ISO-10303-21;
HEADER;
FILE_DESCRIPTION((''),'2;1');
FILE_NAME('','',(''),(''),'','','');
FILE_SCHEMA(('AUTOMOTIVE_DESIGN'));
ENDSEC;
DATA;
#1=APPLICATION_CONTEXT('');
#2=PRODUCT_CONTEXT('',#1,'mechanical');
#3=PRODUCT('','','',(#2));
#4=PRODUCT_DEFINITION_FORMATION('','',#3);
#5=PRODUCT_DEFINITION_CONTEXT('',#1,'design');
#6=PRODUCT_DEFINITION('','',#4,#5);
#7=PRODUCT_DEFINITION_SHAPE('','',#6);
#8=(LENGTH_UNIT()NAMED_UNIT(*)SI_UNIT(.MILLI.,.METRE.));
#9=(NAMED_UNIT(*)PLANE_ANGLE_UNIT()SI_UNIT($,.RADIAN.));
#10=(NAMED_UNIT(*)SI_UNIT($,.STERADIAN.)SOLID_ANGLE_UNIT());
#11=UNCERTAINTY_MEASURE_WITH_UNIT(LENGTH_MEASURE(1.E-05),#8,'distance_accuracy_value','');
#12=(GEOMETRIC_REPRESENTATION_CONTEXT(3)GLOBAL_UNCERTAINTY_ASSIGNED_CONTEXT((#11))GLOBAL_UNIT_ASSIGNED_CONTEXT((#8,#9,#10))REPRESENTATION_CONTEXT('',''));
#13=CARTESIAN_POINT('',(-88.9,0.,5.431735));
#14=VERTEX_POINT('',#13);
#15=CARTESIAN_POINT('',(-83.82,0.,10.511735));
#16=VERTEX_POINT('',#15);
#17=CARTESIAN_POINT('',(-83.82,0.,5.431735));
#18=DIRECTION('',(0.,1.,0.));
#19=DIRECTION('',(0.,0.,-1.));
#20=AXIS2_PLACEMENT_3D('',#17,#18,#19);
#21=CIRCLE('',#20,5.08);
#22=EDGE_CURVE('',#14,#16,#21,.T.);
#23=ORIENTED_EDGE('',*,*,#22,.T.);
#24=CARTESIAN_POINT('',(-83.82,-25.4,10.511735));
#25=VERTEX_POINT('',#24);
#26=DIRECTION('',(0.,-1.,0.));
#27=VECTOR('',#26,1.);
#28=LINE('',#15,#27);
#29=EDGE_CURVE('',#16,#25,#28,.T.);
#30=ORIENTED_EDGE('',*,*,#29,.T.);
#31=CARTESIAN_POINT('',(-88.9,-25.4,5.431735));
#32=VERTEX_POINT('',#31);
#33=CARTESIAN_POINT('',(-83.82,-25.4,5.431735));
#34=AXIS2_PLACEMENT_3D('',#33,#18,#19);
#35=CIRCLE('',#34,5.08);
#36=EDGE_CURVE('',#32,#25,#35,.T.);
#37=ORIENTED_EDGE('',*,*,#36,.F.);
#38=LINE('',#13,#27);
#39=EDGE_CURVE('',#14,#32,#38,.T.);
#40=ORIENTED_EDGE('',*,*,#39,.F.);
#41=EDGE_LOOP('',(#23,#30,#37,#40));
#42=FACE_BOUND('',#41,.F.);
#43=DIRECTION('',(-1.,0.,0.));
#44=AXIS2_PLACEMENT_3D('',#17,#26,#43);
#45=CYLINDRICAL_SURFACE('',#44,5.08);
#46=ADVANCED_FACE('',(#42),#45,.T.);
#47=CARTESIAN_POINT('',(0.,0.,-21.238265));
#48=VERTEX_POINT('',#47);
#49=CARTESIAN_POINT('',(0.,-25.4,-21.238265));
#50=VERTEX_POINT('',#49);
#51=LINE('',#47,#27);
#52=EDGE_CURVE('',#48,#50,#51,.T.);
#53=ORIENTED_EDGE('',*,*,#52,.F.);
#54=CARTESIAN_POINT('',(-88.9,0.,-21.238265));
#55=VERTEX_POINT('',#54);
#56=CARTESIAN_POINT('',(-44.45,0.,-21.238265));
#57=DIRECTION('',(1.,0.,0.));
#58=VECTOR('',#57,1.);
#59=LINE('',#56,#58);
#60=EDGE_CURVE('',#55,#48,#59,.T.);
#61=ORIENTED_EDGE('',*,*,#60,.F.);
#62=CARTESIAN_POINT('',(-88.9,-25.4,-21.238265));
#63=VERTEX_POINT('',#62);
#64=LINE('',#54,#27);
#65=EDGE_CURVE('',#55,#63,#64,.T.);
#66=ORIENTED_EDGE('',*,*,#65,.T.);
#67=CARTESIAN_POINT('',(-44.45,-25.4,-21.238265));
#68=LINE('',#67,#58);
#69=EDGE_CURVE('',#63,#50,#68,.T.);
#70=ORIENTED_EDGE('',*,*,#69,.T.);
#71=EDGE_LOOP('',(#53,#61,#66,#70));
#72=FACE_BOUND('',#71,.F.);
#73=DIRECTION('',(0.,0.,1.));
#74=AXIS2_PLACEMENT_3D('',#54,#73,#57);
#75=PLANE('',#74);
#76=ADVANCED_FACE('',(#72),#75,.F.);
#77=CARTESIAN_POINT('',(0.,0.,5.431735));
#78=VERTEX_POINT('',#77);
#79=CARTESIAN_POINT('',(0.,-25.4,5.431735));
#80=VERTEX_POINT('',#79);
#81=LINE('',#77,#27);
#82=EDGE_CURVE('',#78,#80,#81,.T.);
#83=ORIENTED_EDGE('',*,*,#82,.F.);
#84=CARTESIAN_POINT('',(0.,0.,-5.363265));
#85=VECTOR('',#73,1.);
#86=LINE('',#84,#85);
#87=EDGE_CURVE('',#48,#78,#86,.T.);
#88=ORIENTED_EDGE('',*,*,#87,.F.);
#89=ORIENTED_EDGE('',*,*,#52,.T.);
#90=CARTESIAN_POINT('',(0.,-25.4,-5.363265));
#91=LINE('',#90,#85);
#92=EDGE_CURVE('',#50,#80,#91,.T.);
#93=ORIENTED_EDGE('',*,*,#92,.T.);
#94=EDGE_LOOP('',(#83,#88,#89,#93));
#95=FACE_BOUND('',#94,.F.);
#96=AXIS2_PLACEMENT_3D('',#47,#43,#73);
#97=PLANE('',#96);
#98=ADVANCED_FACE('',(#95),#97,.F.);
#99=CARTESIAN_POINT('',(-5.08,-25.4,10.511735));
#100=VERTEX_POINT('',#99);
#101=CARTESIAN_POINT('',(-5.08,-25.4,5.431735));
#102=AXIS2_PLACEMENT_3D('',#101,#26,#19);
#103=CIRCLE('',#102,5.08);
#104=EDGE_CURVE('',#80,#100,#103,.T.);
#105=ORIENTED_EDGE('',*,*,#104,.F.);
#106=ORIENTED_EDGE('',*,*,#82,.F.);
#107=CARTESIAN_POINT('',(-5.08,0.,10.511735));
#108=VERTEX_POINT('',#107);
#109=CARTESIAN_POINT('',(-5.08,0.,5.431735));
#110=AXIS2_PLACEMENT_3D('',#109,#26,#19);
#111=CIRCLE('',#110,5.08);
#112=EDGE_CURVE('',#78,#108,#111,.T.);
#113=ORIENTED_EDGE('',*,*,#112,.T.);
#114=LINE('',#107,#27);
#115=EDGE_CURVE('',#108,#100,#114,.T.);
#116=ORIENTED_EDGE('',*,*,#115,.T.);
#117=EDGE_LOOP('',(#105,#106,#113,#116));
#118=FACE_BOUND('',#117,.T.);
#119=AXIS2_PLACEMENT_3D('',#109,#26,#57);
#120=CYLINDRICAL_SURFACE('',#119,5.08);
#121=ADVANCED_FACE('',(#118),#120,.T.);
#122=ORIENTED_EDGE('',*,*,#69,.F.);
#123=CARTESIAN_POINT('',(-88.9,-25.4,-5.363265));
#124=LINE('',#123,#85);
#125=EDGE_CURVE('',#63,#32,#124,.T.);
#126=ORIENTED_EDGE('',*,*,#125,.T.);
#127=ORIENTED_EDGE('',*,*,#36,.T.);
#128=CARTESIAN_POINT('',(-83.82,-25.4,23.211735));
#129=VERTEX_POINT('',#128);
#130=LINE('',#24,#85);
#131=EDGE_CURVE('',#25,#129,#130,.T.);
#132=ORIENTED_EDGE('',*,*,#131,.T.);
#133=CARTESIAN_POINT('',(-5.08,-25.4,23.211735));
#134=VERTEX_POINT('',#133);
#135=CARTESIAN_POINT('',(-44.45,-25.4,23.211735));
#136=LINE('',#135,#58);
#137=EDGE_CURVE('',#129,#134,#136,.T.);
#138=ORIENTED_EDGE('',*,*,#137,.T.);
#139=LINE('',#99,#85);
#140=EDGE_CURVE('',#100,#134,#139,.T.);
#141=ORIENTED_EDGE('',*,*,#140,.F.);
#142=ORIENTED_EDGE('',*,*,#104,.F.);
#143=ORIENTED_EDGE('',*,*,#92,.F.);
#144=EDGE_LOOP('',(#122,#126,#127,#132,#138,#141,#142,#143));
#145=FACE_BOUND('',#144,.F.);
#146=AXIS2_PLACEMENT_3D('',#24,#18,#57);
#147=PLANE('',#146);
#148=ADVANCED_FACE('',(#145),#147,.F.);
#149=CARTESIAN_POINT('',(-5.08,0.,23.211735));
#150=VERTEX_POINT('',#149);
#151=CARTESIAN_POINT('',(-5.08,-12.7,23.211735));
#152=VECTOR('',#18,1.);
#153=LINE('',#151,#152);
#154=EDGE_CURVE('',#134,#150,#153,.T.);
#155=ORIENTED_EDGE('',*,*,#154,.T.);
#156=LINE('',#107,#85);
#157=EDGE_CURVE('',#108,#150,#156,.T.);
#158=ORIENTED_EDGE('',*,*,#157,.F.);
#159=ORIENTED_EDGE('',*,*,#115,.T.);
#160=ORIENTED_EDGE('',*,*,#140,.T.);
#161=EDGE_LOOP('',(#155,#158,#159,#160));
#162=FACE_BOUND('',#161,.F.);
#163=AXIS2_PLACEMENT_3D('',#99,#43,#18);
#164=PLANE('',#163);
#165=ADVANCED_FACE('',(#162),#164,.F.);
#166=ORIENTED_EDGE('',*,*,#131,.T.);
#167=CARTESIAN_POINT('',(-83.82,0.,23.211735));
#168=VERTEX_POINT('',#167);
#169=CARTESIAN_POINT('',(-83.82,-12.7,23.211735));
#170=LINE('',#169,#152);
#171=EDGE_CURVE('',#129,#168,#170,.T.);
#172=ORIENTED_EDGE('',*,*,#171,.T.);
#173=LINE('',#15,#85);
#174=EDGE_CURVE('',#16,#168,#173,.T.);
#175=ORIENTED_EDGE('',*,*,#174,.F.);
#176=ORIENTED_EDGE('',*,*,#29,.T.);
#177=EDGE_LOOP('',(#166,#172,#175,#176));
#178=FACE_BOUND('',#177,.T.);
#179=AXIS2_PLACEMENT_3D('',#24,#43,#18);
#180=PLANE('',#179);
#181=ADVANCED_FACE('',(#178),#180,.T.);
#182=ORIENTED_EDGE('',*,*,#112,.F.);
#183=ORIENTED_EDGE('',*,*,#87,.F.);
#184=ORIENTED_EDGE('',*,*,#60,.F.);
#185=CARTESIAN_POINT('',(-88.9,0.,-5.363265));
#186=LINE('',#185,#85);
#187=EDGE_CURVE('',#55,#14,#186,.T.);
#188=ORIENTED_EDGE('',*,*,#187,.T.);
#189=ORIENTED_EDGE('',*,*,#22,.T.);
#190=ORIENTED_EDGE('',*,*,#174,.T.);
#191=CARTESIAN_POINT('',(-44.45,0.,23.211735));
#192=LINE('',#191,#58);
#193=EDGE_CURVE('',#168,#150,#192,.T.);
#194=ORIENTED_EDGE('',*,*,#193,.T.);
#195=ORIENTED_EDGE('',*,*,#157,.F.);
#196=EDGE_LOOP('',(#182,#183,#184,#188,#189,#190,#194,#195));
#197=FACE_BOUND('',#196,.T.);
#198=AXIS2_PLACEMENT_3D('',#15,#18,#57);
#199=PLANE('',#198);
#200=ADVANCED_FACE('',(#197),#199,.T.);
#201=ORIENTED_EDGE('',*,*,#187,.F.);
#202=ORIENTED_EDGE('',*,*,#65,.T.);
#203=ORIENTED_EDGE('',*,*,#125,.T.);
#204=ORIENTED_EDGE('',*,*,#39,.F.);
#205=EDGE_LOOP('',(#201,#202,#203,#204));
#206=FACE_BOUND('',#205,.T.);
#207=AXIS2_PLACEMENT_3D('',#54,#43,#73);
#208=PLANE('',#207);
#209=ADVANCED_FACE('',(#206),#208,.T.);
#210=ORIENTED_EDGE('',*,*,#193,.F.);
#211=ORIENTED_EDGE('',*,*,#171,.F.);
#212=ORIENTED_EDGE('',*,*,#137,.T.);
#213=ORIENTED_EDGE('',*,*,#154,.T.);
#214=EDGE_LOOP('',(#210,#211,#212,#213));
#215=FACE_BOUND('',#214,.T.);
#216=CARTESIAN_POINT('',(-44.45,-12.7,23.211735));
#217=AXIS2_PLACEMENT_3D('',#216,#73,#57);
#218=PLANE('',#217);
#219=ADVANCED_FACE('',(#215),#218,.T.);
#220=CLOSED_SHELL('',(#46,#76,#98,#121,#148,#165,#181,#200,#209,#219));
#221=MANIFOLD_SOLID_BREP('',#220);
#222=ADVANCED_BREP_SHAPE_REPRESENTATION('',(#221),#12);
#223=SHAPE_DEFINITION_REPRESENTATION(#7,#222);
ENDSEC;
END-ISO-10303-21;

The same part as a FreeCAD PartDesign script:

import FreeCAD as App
import Part
import Sketcher

V = App.Vector
Q = App.Units.Quantity


def edges_at(feature, points):
    """Names of the edges that pass closest to the given points."""
    edges = feature.Shape.Edges
    near = lambda p: min(range(len(edges)), key=lambda i: edges[i].distToShape(Part.Vertex(*p))[0])
    return sorted({f"Edge{near(p) + 1}" for p in points})

doc = App.newDocument("Part")
body = doc.addObject("PartDesign::Body", "Body")

# Sketch on XZ plane
sketch1 = body.newObject("Sketcher::SketchObject", "Sketch")
sketch1.AttachmentSupport = (doc.getObject("XZ_Plane"), [""])
sketch1.MapMode = "FlatFace"
sketch1.addGeometry([
    Part.LineSegment(V(-88.9, 10.511735, 0), V(-88.9, -21.238265, 0)),
    Part.LineSegment(V(-88.9, -21.238265, 0), V(0, -21.238265, 0)),
    Part.LineSegment(V(0, -21.238265, 0), V(0, 10.511735, 0)),
    Part.LineSegment(V(0, 10.511735, 0), V(-88.9, 10.511735, 0)),
], False)
sketch1.addConstraint([
    Sketcher.Constraint("Coincident", 0, 2, 1, 1),
    Sketcher.Constraint("Coincident", 1, 2, 2, 1),
    Sketcher.Constraint("Coincident", 2, 2, 3, 1),
    Sketcher.Constraint("Coincident", 3, 2, 0, 1),
    Sketcher.Constraint("Vertical", 0),
    Sketcher.Constraint("Horizontal", 1),
    Sketcher.Constraint("Vertical", 2),
    Sketcher.Constraint("Horizontal", 3),
    Sketcher.Constraint("PointOnObject", 1, 2, -2),
    Sketcher.Constraint("DistanceX", 1, 1, 1, 2, Q("3.5 in")),
    Sketcher.Constraint("DistanceY", 0, 2, 0, 1, Q("1.25 in")),
    Sketcher.Constraint("DistanceY", 0, 2, -1, 1, Q("21.238265 mm")),
])
pad1 = body.newObject("PartDesign::Pad", "Pad")
pad1.Profile = sketch1
pad1.Length = Q("1 in")
doc.recompute()

fillet = body.newObject("PartDesign::Fillet", "Fillet")
fillet.Base = (pad1, edges_at(pad1, [(-88.9, -12.7, 10.512), (0, -12.7, 10.512)]))
fillet.Radius = Q("0.2 in")

# Sketch on XY plane
sketch2 = body.newObject("Sketcher::SketchObject", "Sketch001")
sketch2.AttachmentSupport = (doc.getObject("XY_Plane"), [""])
sketch2.MapMode = "FlatFace"
sketch2.AttachmentOffset = App.Placement(V(0, 0, 10.511735), App.Rotation())
sketch2.addGeometry([
    Part.LineSegment(V(-83.82, 0, 0), V(-83.82, -25.4, 0)),
    Part.LineSegment(V(-83.82, -25.4, 0), V(-5.08, -25.4, 0)),
    Part.LineSegment(V(-5.08, -25.4, 0), V(-5.08, 0, 0)),
    Part.LineSegment(V(-5.08, 0, 0), V(-83.82, 0, 0)),
], False)
sketch2.addConstraint([
    Sketcher.Constraint("Coincident", 0, 2, 1, 1),
    Sketcher.Constraint("Coincident", 1, 2, 2, 1),
    Sketcher.Constraint("Coincident", 2, 2, 3, 1),
    Sketcher.Constraint("Coincident", 3, 2, 0, 1),
    Sketcher.Constraint("Vertical", 0),
    Sketcher.Constraint("Horizontal", 1),
    Sketcher.Constraint("Vertical", 2),
    Sketcher.Constraint("Horizontal", 3),
    Sketcher.Constraint("PointOnObject", 2, 2, -1),
    Sketcher.Constraint("DistanceY", 0, 2, 0, 1, Q("1 in")),
    Sketcher.Constraint("DistanceX", 1, 1, 1, 2, Q("3.1 in")),
    Sketcher.Constraint("DistanceX", 0, 2, -1, 1, Q("3.3 in")),
])
pad2 = body.newObject("PartDesign::Pad", "Pad001")
pad2.Profile = sketch2
pad2.Length = Q("0.5 in")

doc.recompute()
